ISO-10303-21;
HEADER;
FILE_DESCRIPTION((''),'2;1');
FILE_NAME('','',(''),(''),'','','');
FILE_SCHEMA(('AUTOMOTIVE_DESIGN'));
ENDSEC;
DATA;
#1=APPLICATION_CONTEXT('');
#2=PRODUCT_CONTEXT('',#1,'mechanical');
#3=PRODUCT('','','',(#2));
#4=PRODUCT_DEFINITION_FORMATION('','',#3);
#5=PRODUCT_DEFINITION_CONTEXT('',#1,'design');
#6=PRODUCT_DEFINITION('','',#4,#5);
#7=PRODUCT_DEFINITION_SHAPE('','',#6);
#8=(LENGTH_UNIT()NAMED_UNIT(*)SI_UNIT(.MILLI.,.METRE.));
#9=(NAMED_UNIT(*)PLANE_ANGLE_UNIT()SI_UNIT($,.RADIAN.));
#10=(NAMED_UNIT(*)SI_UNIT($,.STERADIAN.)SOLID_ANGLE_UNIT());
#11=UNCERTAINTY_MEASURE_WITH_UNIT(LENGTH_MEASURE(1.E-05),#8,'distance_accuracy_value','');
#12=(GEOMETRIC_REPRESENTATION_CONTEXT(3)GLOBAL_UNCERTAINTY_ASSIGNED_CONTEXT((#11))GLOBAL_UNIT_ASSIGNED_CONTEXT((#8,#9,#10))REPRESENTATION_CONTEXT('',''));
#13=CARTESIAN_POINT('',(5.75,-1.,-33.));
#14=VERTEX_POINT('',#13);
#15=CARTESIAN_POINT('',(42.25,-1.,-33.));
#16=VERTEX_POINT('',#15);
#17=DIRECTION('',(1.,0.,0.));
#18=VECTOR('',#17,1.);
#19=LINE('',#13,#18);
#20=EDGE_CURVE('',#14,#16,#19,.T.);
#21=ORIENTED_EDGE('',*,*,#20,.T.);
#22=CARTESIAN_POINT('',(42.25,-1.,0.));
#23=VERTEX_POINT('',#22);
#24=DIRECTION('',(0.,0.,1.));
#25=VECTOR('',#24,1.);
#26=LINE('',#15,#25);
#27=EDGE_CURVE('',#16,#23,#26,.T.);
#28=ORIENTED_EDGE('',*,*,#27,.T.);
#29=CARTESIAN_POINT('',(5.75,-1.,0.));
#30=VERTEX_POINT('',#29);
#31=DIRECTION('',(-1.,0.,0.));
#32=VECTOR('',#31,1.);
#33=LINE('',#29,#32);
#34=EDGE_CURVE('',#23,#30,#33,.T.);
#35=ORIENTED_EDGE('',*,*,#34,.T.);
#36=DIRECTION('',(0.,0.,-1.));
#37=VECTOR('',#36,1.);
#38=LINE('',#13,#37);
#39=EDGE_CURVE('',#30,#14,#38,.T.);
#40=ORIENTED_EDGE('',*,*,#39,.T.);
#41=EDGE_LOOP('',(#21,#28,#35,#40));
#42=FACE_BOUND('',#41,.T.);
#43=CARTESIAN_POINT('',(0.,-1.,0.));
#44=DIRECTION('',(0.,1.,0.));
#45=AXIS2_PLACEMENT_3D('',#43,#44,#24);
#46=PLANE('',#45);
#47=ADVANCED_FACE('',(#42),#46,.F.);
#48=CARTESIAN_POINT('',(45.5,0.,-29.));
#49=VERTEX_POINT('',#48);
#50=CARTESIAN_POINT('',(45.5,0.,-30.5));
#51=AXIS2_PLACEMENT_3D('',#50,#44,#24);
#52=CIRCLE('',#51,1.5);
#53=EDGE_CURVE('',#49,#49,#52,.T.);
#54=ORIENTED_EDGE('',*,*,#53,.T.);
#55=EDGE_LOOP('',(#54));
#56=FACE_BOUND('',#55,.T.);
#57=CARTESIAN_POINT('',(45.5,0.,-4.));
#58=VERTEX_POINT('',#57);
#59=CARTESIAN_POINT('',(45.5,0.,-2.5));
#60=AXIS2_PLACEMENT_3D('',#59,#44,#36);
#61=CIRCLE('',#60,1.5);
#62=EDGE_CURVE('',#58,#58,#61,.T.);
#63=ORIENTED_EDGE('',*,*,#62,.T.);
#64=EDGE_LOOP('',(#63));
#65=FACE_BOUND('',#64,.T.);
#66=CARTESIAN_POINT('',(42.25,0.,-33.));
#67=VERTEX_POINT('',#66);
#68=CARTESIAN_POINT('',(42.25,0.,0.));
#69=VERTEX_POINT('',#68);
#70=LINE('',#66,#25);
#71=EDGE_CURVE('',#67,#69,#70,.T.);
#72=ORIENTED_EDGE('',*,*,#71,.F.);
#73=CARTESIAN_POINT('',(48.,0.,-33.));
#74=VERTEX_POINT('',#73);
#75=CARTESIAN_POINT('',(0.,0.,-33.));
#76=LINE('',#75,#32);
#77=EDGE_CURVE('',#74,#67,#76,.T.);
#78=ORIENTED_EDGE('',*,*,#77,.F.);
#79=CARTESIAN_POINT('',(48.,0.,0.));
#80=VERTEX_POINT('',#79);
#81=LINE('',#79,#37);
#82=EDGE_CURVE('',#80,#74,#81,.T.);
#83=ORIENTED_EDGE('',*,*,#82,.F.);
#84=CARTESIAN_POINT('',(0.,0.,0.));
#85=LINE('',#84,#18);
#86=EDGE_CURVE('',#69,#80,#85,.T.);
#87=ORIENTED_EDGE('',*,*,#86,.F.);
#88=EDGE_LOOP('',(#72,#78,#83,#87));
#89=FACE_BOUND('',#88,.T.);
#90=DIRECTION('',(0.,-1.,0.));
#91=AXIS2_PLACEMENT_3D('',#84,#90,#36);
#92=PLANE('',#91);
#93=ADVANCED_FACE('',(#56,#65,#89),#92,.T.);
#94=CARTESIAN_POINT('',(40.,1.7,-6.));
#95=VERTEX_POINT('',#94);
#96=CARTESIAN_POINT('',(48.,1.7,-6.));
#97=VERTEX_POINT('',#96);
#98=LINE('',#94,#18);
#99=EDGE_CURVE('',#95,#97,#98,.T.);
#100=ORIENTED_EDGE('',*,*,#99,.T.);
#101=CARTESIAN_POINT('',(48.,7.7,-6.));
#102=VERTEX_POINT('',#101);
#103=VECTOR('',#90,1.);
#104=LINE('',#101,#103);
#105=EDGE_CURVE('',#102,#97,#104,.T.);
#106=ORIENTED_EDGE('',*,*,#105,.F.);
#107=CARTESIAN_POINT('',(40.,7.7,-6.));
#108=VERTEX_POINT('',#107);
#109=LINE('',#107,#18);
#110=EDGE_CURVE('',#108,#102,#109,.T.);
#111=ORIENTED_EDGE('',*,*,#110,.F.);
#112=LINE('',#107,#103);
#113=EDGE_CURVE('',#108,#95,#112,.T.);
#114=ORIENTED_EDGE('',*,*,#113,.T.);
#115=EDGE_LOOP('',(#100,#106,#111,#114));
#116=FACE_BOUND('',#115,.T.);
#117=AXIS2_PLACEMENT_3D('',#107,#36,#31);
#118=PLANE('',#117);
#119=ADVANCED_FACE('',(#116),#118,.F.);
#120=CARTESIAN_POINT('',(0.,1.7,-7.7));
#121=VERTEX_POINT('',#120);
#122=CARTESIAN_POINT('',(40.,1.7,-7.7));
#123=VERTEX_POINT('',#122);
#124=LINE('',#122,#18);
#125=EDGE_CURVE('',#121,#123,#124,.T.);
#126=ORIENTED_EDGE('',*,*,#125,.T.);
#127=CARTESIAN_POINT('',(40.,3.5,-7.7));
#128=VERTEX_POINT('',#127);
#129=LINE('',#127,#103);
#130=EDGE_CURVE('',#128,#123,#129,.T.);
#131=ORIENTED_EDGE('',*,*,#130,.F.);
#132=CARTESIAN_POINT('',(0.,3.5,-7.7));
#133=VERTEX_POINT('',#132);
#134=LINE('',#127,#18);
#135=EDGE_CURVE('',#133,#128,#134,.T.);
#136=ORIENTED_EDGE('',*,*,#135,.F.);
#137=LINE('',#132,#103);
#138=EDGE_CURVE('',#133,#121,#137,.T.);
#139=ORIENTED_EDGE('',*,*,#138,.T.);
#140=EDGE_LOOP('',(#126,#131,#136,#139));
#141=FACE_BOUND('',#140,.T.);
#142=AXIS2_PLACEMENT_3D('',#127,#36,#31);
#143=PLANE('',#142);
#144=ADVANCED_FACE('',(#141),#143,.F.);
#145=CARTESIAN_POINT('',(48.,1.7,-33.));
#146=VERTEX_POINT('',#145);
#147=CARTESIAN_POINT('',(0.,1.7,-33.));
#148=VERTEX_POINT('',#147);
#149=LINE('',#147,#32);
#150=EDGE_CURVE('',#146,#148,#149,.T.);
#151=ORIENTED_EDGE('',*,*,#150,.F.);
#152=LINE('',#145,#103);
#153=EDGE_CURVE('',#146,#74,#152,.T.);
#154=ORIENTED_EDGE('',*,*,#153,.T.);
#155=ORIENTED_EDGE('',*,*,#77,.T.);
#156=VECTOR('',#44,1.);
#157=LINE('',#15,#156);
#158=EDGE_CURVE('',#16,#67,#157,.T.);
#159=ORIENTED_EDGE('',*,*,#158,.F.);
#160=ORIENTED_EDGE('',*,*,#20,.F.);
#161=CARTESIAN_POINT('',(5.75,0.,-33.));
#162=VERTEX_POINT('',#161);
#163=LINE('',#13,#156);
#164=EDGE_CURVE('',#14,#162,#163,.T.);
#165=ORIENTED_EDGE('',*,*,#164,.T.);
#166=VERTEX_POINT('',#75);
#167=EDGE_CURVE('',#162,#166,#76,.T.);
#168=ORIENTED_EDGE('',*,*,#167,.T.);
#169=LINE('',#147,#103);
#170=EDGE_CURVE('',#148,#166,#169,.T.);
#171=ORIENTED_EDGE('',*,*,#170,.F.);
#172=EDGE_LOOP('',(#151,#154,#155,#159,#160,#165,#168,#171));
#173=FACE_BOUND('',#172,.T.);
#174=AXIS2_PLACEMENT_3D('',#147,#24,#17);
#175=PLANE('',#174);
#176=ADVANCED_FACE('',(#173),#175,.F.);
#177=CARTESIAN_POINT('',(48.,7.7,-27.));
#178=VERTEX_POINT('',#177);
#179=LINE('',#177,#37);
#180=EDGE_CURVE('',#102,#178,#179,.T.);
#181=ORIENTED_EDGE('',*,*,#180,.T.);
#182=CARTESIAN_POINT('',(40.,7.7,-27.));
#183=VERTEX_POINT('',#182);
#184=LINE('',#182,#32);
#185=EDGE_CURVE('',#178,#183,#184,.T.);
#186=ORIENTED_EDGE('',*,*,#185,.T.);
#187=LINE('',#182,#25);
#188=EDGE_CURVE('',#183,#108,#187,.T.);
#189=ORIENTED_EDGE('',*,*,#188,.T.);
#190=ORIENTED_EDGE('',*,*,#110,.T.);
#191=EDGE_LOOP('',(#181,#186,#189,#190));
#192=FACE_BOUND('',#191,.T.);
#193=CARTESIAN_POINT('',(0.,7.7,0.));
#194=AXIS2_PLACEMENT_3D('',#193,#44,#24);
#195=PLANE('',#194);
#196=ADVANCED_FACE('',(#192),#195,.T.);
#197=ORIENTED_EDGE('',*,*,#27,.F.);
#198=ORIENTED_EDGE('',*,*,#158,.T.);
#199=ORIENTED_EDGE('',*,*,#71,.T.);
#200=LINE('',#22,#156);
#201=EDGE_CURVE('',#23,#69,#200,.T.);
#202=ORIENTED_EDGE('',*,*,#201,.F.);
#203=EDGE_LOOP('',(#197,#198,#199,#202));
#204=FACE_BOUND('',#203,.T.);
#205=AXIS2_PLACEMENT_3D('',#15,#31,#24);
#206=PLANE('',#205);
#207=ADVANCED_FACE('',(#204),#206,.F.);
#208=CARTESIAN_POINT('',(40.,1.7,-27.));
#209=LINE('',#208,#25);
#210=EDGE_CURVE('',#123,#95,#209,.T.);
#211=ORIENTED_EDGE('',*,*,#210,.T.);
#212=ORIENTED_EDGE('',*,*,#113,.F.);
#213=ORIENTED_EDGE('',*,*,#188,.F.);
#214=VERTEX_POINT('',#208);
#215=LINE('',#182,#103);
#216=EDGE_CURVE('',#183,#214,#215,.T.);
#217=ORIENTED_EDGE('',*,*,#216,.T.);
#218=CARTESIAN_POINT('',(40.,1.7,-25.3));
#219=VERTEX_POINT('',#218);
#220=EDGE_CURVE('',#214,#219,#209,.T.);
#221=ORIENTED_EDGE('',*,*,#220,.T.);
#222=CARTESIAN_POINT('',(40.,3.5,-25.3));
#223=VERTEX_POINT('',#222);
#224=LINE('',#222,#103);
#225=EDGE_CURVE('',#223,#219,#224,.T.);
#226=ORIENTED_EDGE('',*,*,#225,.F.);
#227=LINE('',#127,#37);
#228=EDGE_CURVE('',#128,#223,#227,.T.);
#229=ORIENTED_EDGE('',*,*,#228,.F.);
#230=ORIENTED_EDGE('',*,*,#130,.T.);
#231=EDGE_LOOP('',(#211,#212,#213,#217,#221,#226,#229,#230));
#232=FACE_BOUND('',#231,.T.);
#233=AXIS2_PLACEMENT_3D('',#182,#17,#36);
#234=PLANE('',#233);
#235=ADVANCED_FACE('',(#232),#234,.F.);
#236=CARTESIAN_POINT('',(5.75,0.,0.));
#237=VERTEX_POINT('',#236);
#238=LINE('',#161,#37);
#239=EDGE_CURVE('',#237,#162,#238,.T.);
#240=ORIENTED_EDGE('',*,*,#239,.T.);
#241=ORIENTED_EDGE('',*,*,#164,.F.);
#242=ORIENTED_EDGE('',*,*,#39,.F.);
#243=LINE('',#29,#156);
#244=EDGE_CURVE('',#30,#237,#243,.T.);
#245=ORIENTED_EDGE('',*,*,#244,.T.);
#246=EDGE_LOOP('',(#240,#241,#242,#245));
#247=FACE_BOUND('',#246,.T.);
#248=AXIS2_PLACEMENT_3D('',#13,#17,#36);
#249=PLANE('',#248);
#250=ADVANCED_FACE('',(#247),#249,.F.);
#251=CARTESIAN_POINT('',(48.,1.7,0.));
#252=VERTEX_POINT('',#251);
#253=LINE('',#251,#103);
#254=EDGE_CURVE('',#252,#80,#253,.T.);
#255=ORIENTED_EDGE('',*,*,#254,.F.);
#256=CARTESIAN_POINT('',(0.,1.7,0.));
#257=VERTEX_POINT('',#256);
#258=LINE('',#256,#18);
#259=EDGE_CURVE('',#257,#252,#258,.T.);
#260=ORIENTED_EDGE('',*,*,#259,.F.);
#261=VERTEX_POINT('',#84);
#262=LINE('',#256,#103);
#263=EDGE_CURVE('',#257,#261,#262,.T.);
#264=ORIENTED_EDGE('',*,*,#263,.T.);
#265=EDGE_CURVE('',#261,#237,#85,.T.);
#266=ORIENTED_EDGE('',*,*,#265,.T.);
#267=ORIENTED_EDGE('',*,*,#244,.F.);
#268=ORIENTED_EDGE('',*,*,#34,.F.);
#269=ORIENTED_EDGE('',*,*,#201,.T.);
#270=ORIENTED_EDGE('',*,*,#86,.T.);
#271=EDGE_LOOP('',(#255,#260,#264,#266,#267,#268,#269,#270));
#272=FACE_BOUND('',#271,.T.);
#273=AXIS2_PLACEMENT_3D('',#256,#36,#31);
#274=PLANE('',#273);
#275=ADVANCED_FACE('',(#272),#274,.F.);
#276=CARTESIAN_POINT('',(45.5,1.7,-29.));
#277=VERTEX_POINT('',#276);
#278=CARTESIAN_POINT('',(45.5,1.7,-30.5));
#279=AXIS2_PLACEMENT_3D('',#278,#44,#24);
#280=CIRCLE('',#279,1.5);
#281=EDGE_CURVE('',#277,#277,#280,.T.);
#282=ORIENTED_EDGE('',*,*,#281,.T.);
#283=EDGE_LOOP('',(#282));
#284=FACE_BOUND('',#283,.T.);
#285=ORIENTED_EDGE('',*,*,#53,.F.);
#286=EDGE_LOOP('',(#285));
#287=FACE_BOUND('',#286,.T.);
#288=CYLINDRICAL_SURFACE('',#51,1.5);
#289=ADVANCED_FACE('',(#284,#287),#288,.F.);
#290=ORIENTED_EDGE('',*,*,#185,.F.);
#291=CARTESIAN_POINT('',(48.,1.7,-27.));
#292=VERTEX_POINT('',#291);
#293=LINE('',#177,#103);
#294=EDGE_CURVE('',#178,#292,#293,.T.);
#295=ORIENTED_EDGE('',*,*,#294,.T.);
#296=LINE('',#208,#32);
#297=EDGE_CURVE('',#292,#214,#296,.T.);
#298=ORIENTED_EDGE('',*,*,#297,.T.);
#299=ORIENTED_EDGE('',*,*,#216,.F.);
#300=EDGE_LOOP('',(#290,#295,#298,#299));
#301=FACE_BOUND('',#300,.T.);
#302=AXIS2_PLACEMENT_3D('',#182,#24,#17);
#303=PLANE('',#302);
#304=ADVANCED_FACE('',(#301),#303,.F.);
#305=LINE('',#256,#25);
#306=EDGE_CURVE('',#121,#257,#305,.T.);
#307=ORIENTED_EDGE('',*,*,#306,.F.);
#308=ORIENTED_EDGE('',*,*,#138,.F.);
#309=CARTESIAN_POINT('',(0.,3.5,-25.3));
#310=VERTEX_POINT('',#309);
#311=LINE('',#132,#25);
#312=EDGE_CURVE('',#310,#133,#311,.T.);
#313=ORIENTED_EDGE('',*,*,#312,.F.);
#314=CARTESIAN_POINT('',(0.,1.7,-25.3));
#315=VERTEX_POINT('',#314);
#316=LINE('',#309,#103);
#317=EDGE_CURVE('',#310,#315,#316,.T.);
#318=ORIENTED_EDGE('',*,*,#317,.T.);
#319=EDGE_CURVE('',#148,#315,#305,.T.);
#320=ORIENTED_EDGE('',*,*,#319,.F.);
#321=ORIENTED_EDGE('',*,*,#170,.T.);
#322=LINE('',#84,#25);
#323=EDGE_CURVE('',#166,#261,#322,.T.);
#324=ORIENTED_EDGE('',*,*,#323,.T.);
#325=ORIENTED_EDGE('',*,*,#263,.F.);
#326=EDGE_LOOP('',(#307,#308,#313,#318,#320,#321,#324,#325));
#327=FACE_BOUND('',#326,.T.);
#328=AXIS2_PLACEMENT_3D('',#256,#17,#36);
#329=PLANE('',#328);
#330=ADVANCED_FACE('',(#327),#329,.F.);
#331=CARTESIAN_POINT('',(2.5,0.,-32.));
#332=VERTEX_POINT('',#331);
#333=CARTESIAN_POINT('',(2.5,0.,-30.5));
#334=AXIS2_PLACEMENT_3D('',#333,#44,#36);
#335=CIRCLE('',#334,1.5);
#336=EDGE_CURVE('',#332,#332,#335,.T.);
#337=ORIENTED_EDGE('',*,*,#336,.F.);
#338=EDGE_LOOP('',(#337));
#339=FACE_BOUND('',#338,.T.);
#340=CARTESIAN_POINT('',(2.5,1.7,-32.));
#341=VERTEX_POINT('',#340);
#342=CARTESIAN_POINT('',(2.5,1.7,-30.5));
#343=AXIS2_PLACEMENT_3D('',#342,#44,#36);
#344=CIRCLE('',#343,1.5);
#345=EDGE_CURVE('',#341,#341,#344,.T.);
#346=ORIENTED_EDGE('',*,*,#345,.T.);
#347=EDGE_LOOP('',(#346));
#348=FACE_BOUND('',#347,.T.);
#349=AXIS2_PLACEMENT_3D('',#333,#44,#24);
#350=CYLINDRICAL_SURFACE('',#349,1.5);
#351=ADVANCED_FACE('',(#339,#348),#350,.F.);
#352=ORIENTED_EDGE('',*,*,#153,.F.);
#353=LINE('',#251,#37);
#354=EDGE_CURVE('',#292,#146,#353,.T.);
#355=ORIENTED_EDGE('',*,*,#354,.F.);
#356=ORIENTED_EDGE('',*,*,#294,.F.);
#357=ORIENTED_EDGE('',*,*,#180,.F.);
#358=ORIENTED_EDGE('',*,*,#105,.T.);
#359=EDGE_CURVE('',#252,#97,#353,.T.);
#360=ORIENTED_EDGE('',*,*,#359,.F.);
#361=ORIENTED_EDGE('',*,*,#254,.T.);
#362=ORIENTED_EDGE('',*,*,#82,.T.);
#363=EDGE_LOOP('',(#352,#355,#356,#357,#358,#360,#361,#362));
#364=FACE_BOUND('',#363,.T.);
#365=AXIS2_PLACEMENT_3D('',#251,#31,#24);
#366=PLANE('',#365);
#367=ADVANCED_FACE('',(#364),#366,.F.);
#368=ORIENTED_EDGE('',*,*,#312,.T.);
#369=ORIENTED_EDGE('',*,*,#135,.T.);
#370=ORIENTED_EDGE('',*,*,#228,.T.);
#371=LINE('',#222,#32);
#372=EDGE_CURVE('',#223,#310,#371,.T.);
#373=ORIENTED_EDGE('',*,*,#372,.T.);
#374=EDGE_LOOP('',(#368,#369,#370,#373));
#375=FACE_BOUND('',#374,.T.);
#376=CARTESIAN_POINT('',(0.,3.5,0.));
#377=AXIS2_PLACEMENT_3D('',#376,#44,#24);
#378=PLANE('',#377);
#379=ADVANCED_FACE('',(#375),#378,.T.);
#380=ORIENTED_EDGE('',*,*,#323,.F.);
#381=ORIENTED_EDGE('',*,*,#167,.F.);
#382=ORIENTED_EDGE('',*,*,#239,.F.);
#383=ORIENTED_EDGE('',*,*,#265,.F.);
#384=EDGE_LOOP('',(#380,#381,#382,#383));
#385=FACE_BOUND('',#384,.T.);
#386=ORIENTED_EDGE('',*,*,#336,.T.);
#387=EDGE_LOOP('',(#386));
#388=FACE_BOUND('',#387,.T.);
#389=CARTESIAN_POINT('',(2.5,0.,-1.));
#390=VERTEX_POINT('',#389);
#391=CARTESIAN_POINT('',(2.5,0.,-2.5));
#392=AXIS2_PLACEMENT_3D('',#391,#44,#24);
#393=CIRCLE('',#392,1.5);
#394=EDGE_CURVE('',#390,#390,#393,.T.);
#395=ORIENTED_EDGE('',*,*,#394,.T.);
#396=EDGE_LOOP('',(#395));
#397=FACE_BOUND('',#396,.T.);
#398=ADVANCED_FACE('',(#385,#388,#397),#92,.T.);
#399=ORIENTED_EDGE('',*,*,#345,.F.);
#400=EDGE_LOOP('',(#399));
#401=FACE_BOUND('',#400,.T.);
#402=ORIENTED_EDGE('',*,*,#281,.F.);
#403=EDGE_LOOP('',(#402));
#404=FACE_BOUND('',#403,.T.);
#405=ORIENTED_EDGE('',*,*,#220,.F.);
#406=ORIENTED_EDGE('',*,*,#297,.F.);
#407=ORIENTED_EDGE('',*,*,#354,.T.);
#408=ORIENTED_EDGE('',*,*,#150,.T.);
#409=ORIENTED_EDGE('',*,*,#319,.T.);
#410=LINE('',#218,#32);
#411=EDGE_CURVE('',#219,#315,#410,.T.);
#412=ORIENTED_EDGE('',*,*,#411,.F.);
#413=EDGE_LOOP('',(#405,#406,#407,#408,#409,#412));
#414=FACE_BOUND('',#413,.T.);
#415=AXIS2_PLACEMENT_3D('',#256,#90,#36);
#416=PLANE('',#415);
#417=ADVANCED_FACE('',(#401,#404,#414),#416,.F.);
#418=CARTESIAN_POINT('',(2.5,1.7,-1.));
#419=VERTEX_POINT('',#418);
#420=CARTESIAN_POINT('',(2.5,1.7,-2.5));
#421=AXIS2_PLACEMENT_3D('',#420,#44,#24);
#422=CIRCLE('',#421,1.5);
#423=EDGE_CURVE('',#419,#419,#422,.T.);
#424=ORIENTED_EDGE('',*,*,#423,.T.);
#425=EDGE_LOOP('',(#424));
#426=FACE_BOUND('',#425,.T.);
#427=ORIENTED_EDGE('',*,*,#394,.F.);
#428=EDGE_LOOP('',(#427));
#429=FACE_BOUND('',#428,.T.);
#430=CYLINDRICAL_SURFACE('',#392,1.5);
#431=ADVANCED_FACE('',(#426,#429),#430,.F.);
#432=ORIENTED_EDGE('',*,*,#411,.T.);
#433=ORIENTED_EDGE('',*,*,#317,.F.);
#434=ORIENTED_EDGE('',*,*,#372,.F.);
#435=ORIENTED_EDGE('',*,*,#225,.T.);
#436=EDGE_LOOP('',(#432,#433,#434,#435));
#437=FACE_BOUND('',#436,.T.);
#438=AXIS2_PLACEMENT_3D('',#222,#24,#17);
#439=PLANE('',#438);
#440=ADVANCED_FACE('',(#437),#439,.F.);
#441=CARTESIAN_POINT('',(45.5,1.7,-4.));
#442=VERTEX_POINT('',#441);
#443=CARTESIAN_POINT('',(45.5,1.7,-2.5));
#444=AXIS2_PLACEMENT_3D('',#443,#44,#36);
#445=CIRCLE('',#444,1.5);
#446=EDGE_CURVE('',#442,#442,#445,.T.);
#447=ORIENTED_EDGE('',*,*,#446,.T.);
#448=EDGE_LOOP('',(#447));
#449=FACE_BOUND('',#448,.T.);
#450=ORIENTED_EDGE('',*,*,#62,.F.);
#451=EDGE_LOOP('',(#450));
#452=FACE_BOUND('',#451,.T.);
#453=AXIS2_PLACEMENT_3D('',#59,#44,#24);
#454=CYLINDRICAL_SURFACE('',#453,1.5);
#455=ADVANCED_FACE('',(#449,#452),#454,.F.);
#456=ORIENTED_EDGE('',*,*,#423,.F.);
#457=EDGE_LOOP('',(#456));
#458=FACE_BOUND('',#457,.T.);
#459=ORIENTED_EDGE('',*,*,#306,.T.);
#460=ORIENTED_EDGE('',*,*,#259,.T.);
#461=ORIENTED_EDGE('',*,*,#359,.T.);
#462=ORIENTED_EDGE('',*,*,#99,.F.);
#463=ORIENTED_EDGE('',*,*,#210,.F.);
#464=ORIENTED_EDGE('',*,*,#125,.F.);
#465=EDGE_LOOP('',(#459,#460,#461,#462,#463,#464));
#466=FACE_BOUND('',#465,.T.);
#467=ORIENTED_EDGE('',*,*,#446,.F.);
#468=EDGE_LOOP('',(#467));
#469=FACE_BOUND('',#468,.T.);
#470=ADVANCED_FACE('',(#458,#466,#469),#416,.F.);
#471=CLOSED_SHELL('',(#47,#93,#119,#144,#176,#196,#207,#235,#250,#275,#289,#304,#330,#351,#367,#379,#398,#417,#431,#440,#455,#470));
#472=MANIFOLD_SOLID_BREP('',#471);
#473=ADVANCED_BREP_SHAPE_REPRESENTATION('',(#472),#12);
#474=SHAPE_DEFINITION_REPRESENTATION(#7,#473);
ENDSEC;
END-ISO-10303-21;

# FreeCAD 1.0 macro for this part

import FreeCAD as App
import Part
import Sketcher

V = App.Vector


def add_polygon(sketch, points):
    """Adds a closed chain of lines whose ends are joined by coincident constraints."""
    first, n = sketch.GeometryCount, len(points)
    for a, b in zip(points, points[1:] + points[:1]):
        sketch.addGeometry(Part.LineSegment(App.Vector(*a, 0), App.Vector(*b, 0)), False)
    for i in range(n):
        sketch.addConstraint(Sketcher.Constraint("Coincident", first + i, 2, first + (i + 1) % n, 1))

doc = App.newDocument("Part")
body = doc.addObject("PartDesign::Body", "Body")

# Sketch on XZ plane
sketch1 = body.newObject("Sketcher::SketchObject", "Sketch")
sketch1.AttachmentSupport = (doc.getObject("XZ_Plane"), [""])
sketch1.MapMode = "FlatFace"
add_polygon(sketch1, [(0, -33), (0, 0), (48, 0), (48, -33)])  # lines 0-3
sketch1.addConstraint([
    Sketcher.Constraint("Vertical", 0),
    Sketcher.Constraint("Horizontal", 1),
    Sketcher.Constraint("Vertical", 2),
    Sketcher.Constraint("Horizontal", 3),
    Sketcher.Constraint("Coincident", 0, 2, -1, 1),
    Sketcher.Constraint("DistanceX", 1, 1, 1, 2, 48.0),
    Sketcher.Constraint("DistanceY", 0, 1, 0, 2, 33.0),
])
pad1 = body.newObject("PartDesign::Pad", "Pad")
pad1.Profile = sketch1
pad1.Length = 1.7
pad1.Reversed = True

# Sketch on XZ plane
sketch2 = body.newObject("Sketcher::SketchObject", "Sketch001")
sketch2.AttachmentSupport = (doc.getObject("XZ_Plane"), [""])
sketch2.MapMode = "FlatFace"
sketch2.AttachmentOffset = App.Placement(V(0, 0, -1.7), App.Rotation())
add_polygon(sketch2, [(40, -27), (40, -6), (48, -6), (48, -27)])  # lines 0-3
sketch2.addConstraint([
    Sketcher.Constraint("Vertical", 0),
    Sketcher.Constraint("Horizontal", 1),
    Sketcher.Constraint("Vertical", 2),
    Sketcher.Constraint("Horizontal", 3),
    Sketcher.Constraint("DistanceX", 1, 1, 1, 2, 8.0),
    Sketcher.Constraint("DistanceY", 0, 1, 0, 2, 21.0),
    Sketcher.Constraint("DistanceX", -1, 1, 0, 2, 40.0),
    Sketcher.Constraint("DistanceY", 0, 2, -1, 1, 6.0),
])
pad2 = body.newObject("PartDesign::Pad", "Pad001")
pad2.Profile = sketch2
pad2.Length = 6
pad2.Reversed = True

# Sketch on XZ plane
sketch3 = body.newObject("Sketcher::SketchObject", "Sketch002")
sketch3.AttachmentSupport = (doc.getObject("XZ_Plane"), [""])
sketch3.MapMode = "FlatFace"
sketch3.AttachmentOffset = App.Placement(V(0, 0, -1.7), App.Rotation())
sketch3.addGeometry([
    Part.Circle(V(2.5, -2.5, 0), V(0, 0, 1), 1.5),
    Part.Circle(V(45.5, -2.5, 0), V(0, 0, 1), 1.5),
    Part.Circle(V(45.5, -30.5, 0), V(0, 0, 1), 1.5),
    Part.Circle(V(2.5, -30.5, 0), V(0, 0, 1), 1.5),
], False)
sketch3.addConstraint([
    Sketcher.Constraint("Equal", 0, 1),
    Sketcher.Constraint("Equal", 1, 2),
    Sketcher.Constraint("Equal", 2, 3),
    Sketcher.Constraint("Horizontal", 0, 3, 1, 3),
    Sketcher.Constraint("Horizontal", 2, 3, 3, 3),
    Sketcher.Constraint("Vertical", 1, 3, 2, 3),
    Sketcher.Constraint("Vertical", 0, 3, 3, 3),
    Sketcher.Constraint("Diameter", 0, 3.0),
    Sketcher.Constraint("DistanceX", 0, 3, 1, 3, 43.0),
    Sketcher.Constraint("DistanceY", 2, 3, 1, 3, 28.0),
    Sketcher.Constraint("DistanceX", -1, 1, 0, 3, 2.5),
    Sketcher.Constraint("DistanceY", 0, 3, -1, 1, 2.5),
])
pocket1 = body.newObject("PartDesign::Pocket", "Pocket")
pocket1.Profile = sketch3
pocket1.Type = "ThroughAll"
pocket1.Reversed = True

# Sketch on XZ plane
sketch4 = body.newObject("Sketcher::SketchObject", "Sketch003")
sketch4.AttachmentSupport = (doc.getObject("XZ_Plane"), [""])
sketch4.MapMode = "FlatFace"
add_polygon(sketch4, [(42, -33), (42, 0), (6, 0), (6, -33)])  # lines 0-3
sketch4.addConstraint([
    Sketcher.Constraint("Vertical", 0),
    Sketcher.Constraint("Horizontal", 1),
    Sketcher.Constraint("Vertical", 2),
    Sketcher.Constraint("Horizontal", 3),
    Sketcher.Constraint("PointOnObject", 0, 2, -1),
    Sketcher.Constraint("DistanceY", 0, 1, 0, 2, 33.0),
    Sketcher.Constraint("DistanceX", 1, 2, 1, 1, 36.5),
    Sketcher.Constraint("DistanceX", -1, 1, 0, 2, 42.25),
])
pad3 = body.newObject("PartDesign::Pad", "Pad002")
pad3.Profile = sketch4
pad3.Length = 1

# Sketch on XZ plane
sketch5 = body.newObject("Sketcher::SketchObject", "Sketch004")
sketch5.AttachmentSupport = (doc.getObject("XZ_Plane"), [""])
sketch5.MapMode = "FlatFace"
sketch5.AttachmentOffset = App.Placement(V(0, 0, -1.7), App.Rotation())
add_polygon(sketch5, [(0, -25), (0, -8), (40, -8), (40, -25)])  # lines 0-3
sketch5.addConstraint([
    Sketcher.Constraint("Vertical", 0),
    Sketcher.Constraint("Horizontal", 1),
    Sketcher.Constraint("Vertical", 2),
    Sketcher.Constraint("Horizontal", 3),
    Sketcher.Constraint("PointOnObject", 0, 2, -2),
    Sketcher.Constraint("DistanceX", 1, 1, 1, 2, 40.0),
    Sketcher.Constraint("DistanceY", 0, 1, 0, 2, 17.6),
    Sketcher.Constraint("DistanceY", 0, 2, -1, 1, 7.7),
])
pad4 = body.newObject("PartDesign::Pad", "Pad003")
pad4.Profile = sketch5
pad4.Length = 1.8
pad4.Reversed = True

doc.recompute()
